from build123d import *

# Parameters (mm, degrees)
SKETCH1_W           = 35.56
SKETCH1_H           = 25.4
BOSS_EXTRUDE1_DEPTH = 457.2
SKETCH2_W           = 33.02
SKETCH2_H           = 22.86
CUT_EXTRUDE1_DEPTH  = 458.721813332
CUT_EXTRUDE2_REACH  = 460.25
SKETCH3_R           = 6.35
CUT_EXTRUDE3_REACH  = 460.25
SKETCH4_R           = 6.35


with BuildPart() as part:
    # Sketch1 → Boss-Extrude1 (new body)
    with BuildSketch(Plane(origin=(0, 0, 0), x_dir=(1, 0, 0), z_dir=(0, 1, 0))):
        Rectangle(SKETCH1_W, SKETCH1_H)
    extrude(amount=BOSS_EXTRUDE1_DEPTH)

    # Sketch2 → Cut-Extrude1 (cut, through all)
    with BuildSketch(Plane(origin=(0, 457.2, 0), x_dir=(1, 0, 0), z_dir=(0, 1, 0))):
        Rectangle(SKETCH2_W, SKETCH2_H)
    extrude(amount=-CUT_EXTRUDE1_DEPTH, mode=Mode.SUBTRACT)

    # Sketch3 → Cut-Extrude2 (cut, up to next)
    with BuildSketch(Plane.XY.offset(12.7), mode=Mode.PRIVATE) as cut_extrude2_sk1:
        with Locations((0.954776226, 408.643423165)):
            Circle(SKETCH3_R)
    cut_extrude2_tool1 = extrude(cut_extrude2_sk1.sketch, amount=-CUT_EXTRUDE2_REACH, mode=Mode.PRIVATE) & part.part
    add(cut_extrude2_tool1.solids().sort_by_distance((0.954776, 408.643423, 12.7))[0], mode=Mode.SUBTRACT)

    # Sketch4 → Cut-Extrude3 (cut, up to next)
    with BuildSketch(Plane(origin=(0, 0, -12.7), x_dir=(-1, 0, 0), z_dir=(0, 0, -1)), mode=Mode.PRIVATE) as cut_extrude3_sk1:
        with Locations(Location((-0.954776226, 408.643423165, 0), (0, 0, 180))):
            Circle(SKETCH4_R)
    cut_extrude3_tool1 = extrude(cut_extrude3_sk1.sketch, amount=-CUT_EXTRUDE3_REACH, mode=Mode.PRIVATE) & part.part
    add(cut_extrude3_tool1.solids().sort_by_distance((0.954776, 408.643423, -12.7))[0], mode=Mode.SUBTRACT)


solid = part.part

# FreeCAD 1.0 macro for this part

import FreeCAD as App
import Part
import Sketcher

V = App.Vector
Q = App.Units.Quantity


def add_polygon(sketch, points):
    """Adds a closed chain of lines whose ends are joined by coincident constraints."""
    first, n = sketch.GeometryCount, len(points)
    for a, b in zip(points, points[1:] + points[:1]):
        sketch.addGeometry(Part.LineSegment(App.Vector(*a, 0), App.Vector(*b, 0)), False)
    for i in range(n):
        sketch.addConstraint(Sketcher.Constraint("Coincident", first + i, 2, first + (i + 1) % n, 1))

doc = App.newDocument("Part")
body = doc.addObject("PartDesign::Body", "Body")

# Sketch on XZ plane
sketch1 = body.newObject("Sketcher::SketchObject", "Sketch")
sketch1.AttachmentSupport = (doc.getObject("XZ_Plane"), [""])
sketch1.MapMode = "FlatFace"
add_polygon(sketch1, [(-18, -13), (-18, 13), (18, 13), (18, -13)])  # lines 0-3
sketch1.addConstraint([
    Sketcher.Constraint("Vertical", 0),
    Sketcher.Constraint("Horizontal", 1),
    Sketcher.Constraint("Vertical", 2),
    Sketcher.Constraint("Horizontal", 3),
    Sketcher.Constraint("Symmetric", 0, 2, 2, 2, -1, 1),
    Sketcher.Constraint("DistanceY", 0, 1, 0, 2, Q("1 in")),
    Sketcher.Constraint("DistanceX", 1, 1, 1, 2, Q("1.4 in")),
])
pad1 = body.newObject("PartDesign::Pad", "Pad")
pad1.Profile = sketch1
pad1.Length = Q("18 in")
pad1.Reversed = True

# Sketch on XZ plane
sketch2 = body.newObject("Sketcher::SketchObject", "Sketch001")
sketch2.AttachmentSupport = (doc.getObject("XZ_Plane"), [""])
sketch2.MapMode = "FlatFace"
sketch2.AttachmentOffset = App.Placement(V(0, 0, -18 * 25.4), App.Rotation())
add_polygon(sketch2, [(-17, -11), (-17, 11), (17, 11), (17, -11)])  # lines 0-3
sketch2.addConstraint([
    Sketcher.Constraint("Vertical", 0),
    Sketcher.Constraint("Horizontal", 1),
    Sketcher.Constraint("Vertical", 2),
    Sketcher.Constraint("Horizontal", 3),
    Sketcher.Constraint("Symmetric", 0, 2, 2, 2, -1, 1),
    Sketcher.Constraint("DistanceX", 1, 1, 1, 2, Q("1.3 in")),
    Sketcher.Constraint("DistanceY", 0, 1, 0, 2, Q("0.9 in")),
])
pocket1 = body.newObject("PartDesign::Pocket", "Pocket")
pocket1.Profile = sketch2
pocket1.Type = "ThroughAll"
pocket1.Reversed = True

# Sketch on XY plane
sketch3 = body.newObject("Sketcher::SketchObject", "Sketch002")
sketch3.AttachmentSupport = (doc.getObject("XY_Plane"), [""])
sketch3.MapMode = "FlatFace"
sketch3.AttachmentOffset = App.Placement(V(0, 0, 0.5 * 25.4), App.Rotation())
sketch3.addGeometry(Part.Circle(V(1, 409, 0), V(0, 0, 1), 6), False)
sketch3.addConstraint([
    Sketcher.Constraint("Diameter", 0, Q("0.5 in")),
    Sketcher.Constraint("DistanceX", -1, 1, 0, 3, Q("0.954776 mm")),
    Sketcher.Constraint("DistanceY", -1, 1, 0, 3, Q("408.643423 mm")),
])
pocket2 = body.newObject("PartDesign::Pocket", "Pocket001")
pocket2.Profile = sketch3
pocket2.Type = "UpToFirst"

# Sketch on XY plane
sketch4 = body.newObject("Sketcher::SketchObject", "Sketch003")
sketch4.AttachmentSupport = (doc.getObject("XY_Plane"), [""])
sketch4.MapMode = "FlatFace"
sketch4.AttachmentOffset = App.Placement(V(0, 0, -0.5 * 25.4), App.Rotation())
sketch4.addGeometry(Part.Circle(V(1, 409, 0), V(0, 0, 1), 6), False)
sketch4.addConstraint([
    Sketcher.Constraint("Diameter", 0, Q("0.5 in")),
    Sketcher.Constraint("DistanceX", -1, 1, 0, 3, Q("0.954776 mm")),
    Sketcher.Constraint("DistanceY", -1, 1, 0, 3, Q("408.643423 mm")),
])
pocket3 = body.newObject("PartDesign::Pocket", "Pocket002")
pocket3.Profile = sketch4
pocket3.Type = "UpToFirst"
pocket3.Reversed = True

doc.recompute()
